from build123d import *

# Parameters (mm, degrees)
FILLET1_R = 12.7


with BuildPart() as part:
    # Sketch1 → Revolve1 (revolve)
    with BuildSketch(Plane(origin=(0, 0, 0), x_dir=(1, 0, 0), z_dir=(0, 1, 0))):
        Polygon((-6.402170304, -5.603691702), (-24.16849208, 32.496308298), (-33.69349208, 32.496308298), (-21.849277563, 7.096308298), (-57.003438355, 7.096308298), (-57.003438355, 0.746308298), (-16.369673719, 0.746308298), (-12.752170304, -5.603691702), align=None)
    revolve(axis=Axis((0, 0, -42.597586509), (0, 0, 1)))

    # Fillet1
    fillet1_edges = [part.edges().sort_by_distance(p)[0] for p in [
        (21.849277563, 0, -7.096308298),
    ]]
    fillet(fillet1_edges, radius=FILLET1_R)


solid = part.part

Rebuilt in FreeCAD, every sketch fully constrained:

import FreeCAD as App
import Part
import Sketcher
from FreeCAD import Vector
Q = App.Units.Quantity


def edges_at(feature, points):
    """Names of the edges that pass closest to the given points."""
    edges = feature.Shape.Edges
    near = lambda p: min(range(len(edges)), key=lambda i: edges[i].distToShape(Part.Vertex(*p))[0])
    return sorted({f"Edge{near(p) + 1}" for p in points})


def add_polygon(sketch, points):
    """Adds a closed chain of lines whose ends are joined by coincident constraints."""
    first, n = sketch.GeometryCount, len(points)
    for a, b in zip(points, points[1:] + points[:1]):
        sketch.addGeometry(Part.LineSegment(App.Vector(*a, 0), App.Vector(*b, 0)), False)
    for i in range(n):
        sketch.addConstraint(Sketcher.Constraint("Coincident", first + i, 2, first + (i + 1) % n, 1))

doc = App.newDocument("Part")
body = doc.addObject("PartDesign::Body", "Body")

# Sketch on XZ plane
sketch1 = doc.addObject("Sketcher::SketchObject", "Sketch")
body.addObject(sketch1)
sketch1.AttachmentSupport = (doc.XZ_Plane, [""])
sketch1.MapMode = "FlatFace"
add_polygon(sketch1, [(-6.40217, 5.603692), (-24.168492, -32.496308), (-33.693492, -32.496308), (-21.849278, -7.096308), (-57.003438, -7.096308), (-57.003438, -0.746308), (-16.369674, -0.746308), (-12.75217, 5.603692)])  # lines 0-7
sketch1.addConstraint([
    Sketcher.Constraint("Horizontal", 1),
    Sketcher.Constraint("Horizontal", 3),
    Sketcher.Constraint("Vertical", 4),
    Sketcher.Constraint("Horizontal", 5),
    Sketcher.Constraint("Horizontal", 7),
    Sketcher.Constraint("Parallel", 0, 2),
    Sketcher.Constraint("Equal", 7, 4),
    Sketcher.Constraint("Angle", 0, Q("-115 deg")),
    Sketcher.Constraint("DistanceY", 0, 2, 2, 2, Q("1 in")),
    Sketcher.Constraint("DistanceX", 7, 1, 7, 2, Q("0.25 in")),
    Sketcher.Constraint("DistanceY", 2, 2, 6, 2, Q("0.5 in")),
    Sketcher.Constraint("DistanceX", 1, 2, 1, 1, Q("0.375 in")),
    Sketcher.Constraint("DistanceX", 3, 2, 3, 1, 35.154161),
    Sketcher.Constraint("DistanceX", 5, 1, 5, 2, 40.633765),
    Sketcher.Constraint("DistanceY", 0, 2, -1, 1, 32.496308),
    Sketcher.Constraint("DistanceX", 3, 2, -1, 1, 57.003438),
])
revolution = doc.addObject("PartDesign::Revolution", "Revolution")
body.addObject(revolution)
revolution.Profile = sketch1
revolution.ReferenceAxis = (sketch1, ["V_Axis"])
revolution.Angle = 360
doc.recompute()

fillet = doc.addObject("PartDesign::Fillet", "Fillet")
body.addObject(fillet)
fillet.Base = (revolution, edges_at(revolution, [(21.849, 0, -7.096)]))
fillet.Radius = Q("0.5 in")

doc.recompute()
